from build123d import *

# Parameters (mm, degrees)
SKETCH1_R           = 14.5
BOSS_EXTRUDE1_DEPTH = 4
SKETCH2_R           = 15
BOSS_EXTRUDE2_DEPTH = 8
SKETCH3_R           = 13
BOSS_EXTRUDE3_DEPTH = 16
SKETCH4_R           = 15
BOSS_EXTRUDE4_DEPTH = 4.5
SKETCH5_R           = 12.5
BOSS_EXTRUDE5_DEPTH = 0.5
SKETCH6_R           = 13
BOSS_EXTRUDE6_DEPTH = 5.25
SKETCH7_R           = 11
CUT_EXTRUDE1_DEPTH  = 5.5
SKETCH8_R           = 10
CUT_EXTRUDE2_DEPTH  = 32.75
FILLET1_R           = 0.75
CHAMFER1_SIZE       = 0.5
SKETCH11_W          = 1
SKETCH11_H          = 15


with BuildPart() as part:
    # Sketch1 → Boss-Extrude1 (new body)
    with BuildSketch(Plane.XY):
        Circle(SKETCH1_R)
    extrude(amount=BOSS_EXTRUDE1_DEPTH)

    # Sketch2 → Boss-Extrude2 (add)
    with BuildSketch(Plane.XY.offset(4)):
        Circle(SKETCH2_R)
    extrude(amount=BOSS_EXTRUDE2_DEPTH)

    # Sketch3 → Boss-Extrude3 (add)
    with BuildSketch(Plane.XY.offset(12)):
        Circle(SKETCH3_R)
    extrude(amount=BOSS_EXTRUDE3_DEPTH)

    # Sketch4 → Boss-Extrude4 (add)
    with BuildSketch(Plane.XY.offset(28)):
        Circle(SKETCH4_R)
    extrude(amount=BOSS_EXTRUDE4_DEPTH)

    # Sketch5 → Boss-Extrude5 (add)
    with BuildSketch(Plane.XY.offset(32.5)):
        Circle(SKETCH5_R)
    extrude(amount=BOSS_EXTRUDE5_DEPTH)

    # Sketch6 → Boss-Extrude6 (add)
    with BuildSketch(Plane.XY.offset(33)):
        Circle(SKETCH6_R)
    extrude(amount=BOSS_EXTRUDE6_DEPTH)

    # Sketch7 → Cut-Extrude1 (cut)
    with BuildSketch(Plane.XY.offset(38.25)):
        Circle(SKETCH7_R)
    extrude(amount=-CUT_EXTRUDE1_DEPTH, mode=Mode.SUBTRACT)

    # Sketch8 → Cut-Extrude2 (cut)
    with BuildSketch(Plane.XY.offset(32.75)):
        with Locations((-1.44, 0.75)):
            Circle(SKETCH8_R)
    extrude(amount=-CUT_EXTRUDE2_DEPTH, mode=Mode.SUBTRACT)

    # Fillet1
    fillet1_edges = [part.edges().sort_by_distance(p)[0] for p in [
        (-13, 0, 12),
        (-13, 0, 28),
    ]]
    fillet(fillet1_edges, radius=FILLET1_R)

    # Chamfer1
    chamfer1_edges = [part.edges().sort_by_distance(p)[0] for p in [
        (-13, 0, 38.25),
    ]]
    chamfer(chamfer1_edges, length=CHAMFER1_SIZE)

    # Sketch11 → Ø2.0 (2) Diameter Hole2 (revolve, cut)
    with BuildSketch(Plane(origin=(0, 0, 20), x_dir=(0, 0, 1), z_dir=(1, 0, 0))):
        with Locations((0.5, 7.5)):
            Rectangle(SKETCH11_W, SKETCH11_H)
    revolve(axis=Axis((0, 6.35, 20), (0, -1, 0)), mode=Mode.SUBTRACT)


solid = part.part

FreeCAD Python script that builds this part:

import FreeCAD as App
import Part
import Sketcher

V = App.Vector


def edges_at(feature, points):
    """Names of the edges that pass closest to the given points."""
    edges = feature.Shape.Edges
    near = lambda p: min(range(len(edges)), key=lambda i: edges[i].distToShape(Part.Vertex(*p))[0])
    return sorted({f"Edge{near(p) + 1}" for p in points})

doc = App.newDocument("Part")
params = doc.addObject("Spreadsheet::Sheet", "Params")
for row, (alias, value) in enumerate([
    ("sketch1_diameter", "29 mm"),
    ("pad1_length", "4 mm"),
    ("sketch2_diameter", "30 mm"),
    ("pad2_length", "8 mm"),
    ("sketch3_diameter", "26 mm"),
    ("pad3_length", "16 mm"),
    ("sketch4_diameter", "30 mm"),
    ("pad4_length", "4.5 mm"),
    ("sketch5_diameter", "25 mm"),
    ("pad5_length", "0.5 mm"),
    ("sketch6_diameter", "26 mm"),
    ("pad6_length", "5.25 mm"),
    ("sketch7_diameter", "22 mm"),
    ("pocket1_length", "5.5 mm"),
    ("sketch8_diameter", "20 mm"),
    ("pocket2_length", "32.75 mm"),
    ("fillet_radius", "0.75 mm"),
    ("chamfer_size", "0.5 mm"),
    ("sketch9_width", "15 mm"),
    ("sketch9_height", "1 mm"),
    ("groove_angle", "360 deg"),
], start=1):
    params.set(f"A{row}", alias)
    params.set(f"B{row}", "=" + value)
    params.setAlias(f"B{row}", alias)

body = doc.addObject("PartDesign::Body", "Body")

sketch1 = body.newObject("Sketcher::SketchObject", "Sketch")
sketch1.AttachmentSupport = (doc.getObject("XY_Plane"), [""])
sketch1.MapMode = "FlatFace"
sketch1.addGeometry(Part.Circle(V(0, 0, 0), V(0, 0, 1), 14), False)
sketch1.addConstraint([
    Sketcher.Constraint("Coincident", 0, 3, -1, 1),
    Sketcher.Constraint("Diameter", 0, 29.0),
])
sketch1.setExpression("Constraints[1]", "Params.sketch1_diameter")
pad1 = body.newObject("PartDesign::Pad", "Pad")
pad1.Profile = sketch1
pad1.setExpression("Length", "Params.pad1_length")

sketch2 = body.newObject("Sketcher::SketchObject", "Sketch001")
sketch2.AttachmentSupport = (doc.getObject("XY_Plane"), [""])
sketch2.MapMode = "FlatFace"
sketch2.AttachmentOffset = App.Placement(V(0, 0, 4), App.Rotation())
sketch2.addGeometry(Part.Circle(V(0, 0, 0), V(0, 0, 1), 15), False)
sketch2.addConstraint([
    Sketcher.Constraint("Coincident", 0, 3, -1, 1),
    Sketcher.Constraint("Diameter", 0, 30.0),
])
sketch2.setExpression("Constraints[1]", "Params.sketch2_diameter")
pad2 = body.newObject("PartDesign::Pad", "Pad001")
pad2.Profile = sketch2
pad2.setExpression("Length", "Params.pad2_length")

sketch3 = body.newObject("Sketcher::SketchObject", "Sketch002")
sketch3.AttachmentSupport = (doc.getObject("XY_Plane"), [""])
sketch3.MapMode = "FlatFace"
sketch3.AttachmentOffset = App.Placement(V(0, 0, 12), App.Rotation())
sketch3.addGeometry(Part.Circle(V(0, 0, 0), V(0, 0, 1), 13), False)
sketch3.addConstraint([
    Sketcher.Constraint("Coincident", 0, 3, -1, 1),
    Sketcher.Constraint("Diameter", 0, 26.0),
])
sketch3.setExpression("Constraints[1]", "Params.sketch3_diameter")
pad3 = body.newObject("PartDesign::Pad", "Pad002")
pad3.Profile = sketch3
pad3.setExpression("Length", "Params.pad3_length")

sketch4 = body.newObject("Sketcher::SketchObject", "Sketch003")
sketch4.AttachmentSupport = (doc.getObject("XY_Plane"), [""])
sketch4.MapMode = "FlatFace"
sketch4.AttachmentOffset = App.Placement(V(0, 0, 28), App.Rotation())
sketch4.addGeometry(Part.Circle(V(0, 0, 0), V(0, 0, 1), 15), False)
sketch4.addConstraint([
    Sketcher.Constraint("Coincident", 0, 3, -1, 1),
    Sketcher.Constraint("Diameter", 0, 30.0),
])
sketch4.setExpression("Constraints[1]", "Params.sketch4_diameter")
pad4 = body.newObject("PartDesign::Pad", "Pad003")
pad4.Profile = sketch4
pad4.setExpression("Length", "Params.pad4_length")

sketch5 = body.newObject("Sketcher::SketchObject", "Sketch004")
sketch5.AttachmentSupport = (doc.getObject("XY_Plane"), [""])
sketch5.MapMode = "FlatFace"
sketch5.AttachmentOffset = App.Placement(V(0, 0, 32.5), App.Rotation())
sketch5.addGeometry(Part.Circle(V(0, 0, 0), V(0, 0, 1), 12), False)
sketch5.addConstraint([
    Sketcher.Constraint("Coincident", 0, 3, -1, 1),
    Sketcher.Constraint("Diameter", 0, 25.0),
])
sketch5.setExpression("Constraints[1]", "Params.sketch5_diameter")
pad5 = body.newObject("PartDesign::Pad", "Pad004")
pad5.Profile = sketch5
pad5.setExpression("Length", "Params.pad5_length")

sketch6 = body.newObject("Sketcher::SketchObject", "Sketch005")
sketch6.AttachmentSupport = (doc.getObject("XY_Plane"), [""])
sketch6.MapMode = "FlatFace"
sketch6.AttachmentOffset = App.Placement(V(0, 0, 33), App.Rotation())
sketch6.addGeometry(Part.Circle(V(0, 0, 0), V(0, 0, 1), 13), False)
sketch6.addConstraint([
    Sketcher.Constraint("Coincident", 0, 3, -1, 1),
    Sketcher.Constraint("Diameter", 0, 26.0),
])
sketch6.setExpression("Constraints[1]", "Params.sketch6_diameter")
pad6 = body.newObject("PartDesign::Pad", "Pad005")
pad6.Profile = sketch6
pad6.setExpression("Length", "Params.pad6_length")

sketch7 = body.newObject("Sketcher::SketchObject", "Sketch006")
sketch7.AttachmentSupport = (doc.getObject("XY_Plane"), [""])
sketch7.MapMode = "FlatFace"
sketch7.AttachmentOffset = App.Placement(V(0, 0, 38.25), App.Rotation())
sketch7.addGeometry(Part.Circle(V(0, 0, 0), V(0, 0, 1), 11), False)
sketch7.addConstraint([
    Sketcher.Constraint("Coincident", 0, 3, -1, 1),
    Sketcher.Constraint("Diameter", 0, 22.0),
])
sketch7.setExpression("Constraints[1]", "Params.sketch7_diameter")
pocket1 = body.newObject("PartDesign::Pocket", "Pocket")
pocket1.Profile = sketch7
pocket1.setExpression("Length", "Params.pocket1_length")

sketch8 = body.newObject("Sketcher::SketchObject", "Sketch007")
sketch8.AttachmentSupport = (doc.getObject("XY_Plane"), [""])
sketch8.MapMode = "FlatFace"
sketch8.AttachmentOffset = App.Placement(V(0, 0, 32.75), App.Rotation())
sketch8.addGeometry(Part.Circle(V(-1, 1, 0), V(0, 0, 1), 10), False)
sketch8.addConstraint([
    Sketcher.Constraint("Diameter", 0, 20.0),
    Sketcher.Constraint("DistanceX", 0, 3, -1, 1, 1.44),
    Sketcher.Constraint("DistanceY", -1, 1, 0, 3, 0.75),
])
sketch8.setExpression("Constraints[0]", "Params.sketch8_diameter")
pocket2 = body.newObject("PartDesign::Pocket", "Pocket001")
pocket2.Profile = sketch8
pocket2.setExpression("Length", "Params.pocket2_length")
doc.recompute()

fillet = body.newObject("PartDesign::Fillet", "Fillet")
fillet.Base = (pocket2, edges_at(pocket2, [(-13, 0, 12), (-13, 0, 28)]))
fillet.setExpression("Radius", "Params.fillet_radius")
doc.recompute()

chamfer = body.newObject("PartDesign::Chamfer", "Chamfer")
chamfer.Base = (fillet, edges_at(fillet, [(-13, 0, 38.25)]))
chamfer.setExpression("Size", "Params.chamfer_size")

sketch9 = body.newObject("Sketcher::SketchObject", "Sketch008")
sketch9.AttachmentSupport = (doc.getObject("YZ_Plane"), [""])
sketch9.MapMode = "FlatFace"
sketch9.addGeometry([
    Part.LineSegment(V(-15, 20, 0), V(0, 20, 0)),
    Part.LineSegment(V(0, 20, 0), V(0, 21, 0)),
    Part.LineSegment(V(0, 21, 0), V(-15, 21, 0)),
    Part.LineSegment(V(-15, 21, 0), V(-15, 20, 0)),
], False)
sketch9.addGeometry(Part.LineSegment(V(0, 20, 0), V(-15, 20, 0)), True)
sketch9.addConstraint([
    Sketcher.Constraint("Coincident", 0, 2, 1, 1),
    Sketcher.Constraint("Coincident", 1, 2, 2, 1),
    Sketcher.Constraint("Coincident", 2, 2, 3, 1),
    Sketcher.Constraint("Coincident", 3, 2, 0, 1),
    Sketcher.Constraint("Horizontal", 0),
    Sketcher.Constraint("Vertical", 1),
    Sketcher.Constraint("Horizontal", 2),
    Sketcher.Constraint("Vertical", 3),
    Sketcher.Constraint("Horizontal", 4),
    Sketcher.Constraint("Coincident", 4, 1, 0, 2),
    Sketcher.Constraint("PointOnObject", 0, 2, -2),
    Sketcher.Constraint("Vertical", 2, 2, 4, 2),
    Sketcher.Constraint("DistanceX", 0, 1, 0, 2, 15.0),
    Sketcher.Constraint("DistanceY", 1, 1, 1, 2, 1.0),
    Sketcher.Constraint("DistanceY", -1, 1, 0, 2, 20.0),
])
sketch9.setExpression("Constraints[12]", "Params.sketch9_width")
sketch9.setExpression("Constraints[13]", "Params.sketch9_height")
groove = body.newObject("PartDesign::Groove", "Groove")
groove.Profile = sketch9
groove.ReferenceAxis = (sketch9, ["Axis0"])
groove.setExpression("Angle", "Params.groove_angle")

doc.recompute()
